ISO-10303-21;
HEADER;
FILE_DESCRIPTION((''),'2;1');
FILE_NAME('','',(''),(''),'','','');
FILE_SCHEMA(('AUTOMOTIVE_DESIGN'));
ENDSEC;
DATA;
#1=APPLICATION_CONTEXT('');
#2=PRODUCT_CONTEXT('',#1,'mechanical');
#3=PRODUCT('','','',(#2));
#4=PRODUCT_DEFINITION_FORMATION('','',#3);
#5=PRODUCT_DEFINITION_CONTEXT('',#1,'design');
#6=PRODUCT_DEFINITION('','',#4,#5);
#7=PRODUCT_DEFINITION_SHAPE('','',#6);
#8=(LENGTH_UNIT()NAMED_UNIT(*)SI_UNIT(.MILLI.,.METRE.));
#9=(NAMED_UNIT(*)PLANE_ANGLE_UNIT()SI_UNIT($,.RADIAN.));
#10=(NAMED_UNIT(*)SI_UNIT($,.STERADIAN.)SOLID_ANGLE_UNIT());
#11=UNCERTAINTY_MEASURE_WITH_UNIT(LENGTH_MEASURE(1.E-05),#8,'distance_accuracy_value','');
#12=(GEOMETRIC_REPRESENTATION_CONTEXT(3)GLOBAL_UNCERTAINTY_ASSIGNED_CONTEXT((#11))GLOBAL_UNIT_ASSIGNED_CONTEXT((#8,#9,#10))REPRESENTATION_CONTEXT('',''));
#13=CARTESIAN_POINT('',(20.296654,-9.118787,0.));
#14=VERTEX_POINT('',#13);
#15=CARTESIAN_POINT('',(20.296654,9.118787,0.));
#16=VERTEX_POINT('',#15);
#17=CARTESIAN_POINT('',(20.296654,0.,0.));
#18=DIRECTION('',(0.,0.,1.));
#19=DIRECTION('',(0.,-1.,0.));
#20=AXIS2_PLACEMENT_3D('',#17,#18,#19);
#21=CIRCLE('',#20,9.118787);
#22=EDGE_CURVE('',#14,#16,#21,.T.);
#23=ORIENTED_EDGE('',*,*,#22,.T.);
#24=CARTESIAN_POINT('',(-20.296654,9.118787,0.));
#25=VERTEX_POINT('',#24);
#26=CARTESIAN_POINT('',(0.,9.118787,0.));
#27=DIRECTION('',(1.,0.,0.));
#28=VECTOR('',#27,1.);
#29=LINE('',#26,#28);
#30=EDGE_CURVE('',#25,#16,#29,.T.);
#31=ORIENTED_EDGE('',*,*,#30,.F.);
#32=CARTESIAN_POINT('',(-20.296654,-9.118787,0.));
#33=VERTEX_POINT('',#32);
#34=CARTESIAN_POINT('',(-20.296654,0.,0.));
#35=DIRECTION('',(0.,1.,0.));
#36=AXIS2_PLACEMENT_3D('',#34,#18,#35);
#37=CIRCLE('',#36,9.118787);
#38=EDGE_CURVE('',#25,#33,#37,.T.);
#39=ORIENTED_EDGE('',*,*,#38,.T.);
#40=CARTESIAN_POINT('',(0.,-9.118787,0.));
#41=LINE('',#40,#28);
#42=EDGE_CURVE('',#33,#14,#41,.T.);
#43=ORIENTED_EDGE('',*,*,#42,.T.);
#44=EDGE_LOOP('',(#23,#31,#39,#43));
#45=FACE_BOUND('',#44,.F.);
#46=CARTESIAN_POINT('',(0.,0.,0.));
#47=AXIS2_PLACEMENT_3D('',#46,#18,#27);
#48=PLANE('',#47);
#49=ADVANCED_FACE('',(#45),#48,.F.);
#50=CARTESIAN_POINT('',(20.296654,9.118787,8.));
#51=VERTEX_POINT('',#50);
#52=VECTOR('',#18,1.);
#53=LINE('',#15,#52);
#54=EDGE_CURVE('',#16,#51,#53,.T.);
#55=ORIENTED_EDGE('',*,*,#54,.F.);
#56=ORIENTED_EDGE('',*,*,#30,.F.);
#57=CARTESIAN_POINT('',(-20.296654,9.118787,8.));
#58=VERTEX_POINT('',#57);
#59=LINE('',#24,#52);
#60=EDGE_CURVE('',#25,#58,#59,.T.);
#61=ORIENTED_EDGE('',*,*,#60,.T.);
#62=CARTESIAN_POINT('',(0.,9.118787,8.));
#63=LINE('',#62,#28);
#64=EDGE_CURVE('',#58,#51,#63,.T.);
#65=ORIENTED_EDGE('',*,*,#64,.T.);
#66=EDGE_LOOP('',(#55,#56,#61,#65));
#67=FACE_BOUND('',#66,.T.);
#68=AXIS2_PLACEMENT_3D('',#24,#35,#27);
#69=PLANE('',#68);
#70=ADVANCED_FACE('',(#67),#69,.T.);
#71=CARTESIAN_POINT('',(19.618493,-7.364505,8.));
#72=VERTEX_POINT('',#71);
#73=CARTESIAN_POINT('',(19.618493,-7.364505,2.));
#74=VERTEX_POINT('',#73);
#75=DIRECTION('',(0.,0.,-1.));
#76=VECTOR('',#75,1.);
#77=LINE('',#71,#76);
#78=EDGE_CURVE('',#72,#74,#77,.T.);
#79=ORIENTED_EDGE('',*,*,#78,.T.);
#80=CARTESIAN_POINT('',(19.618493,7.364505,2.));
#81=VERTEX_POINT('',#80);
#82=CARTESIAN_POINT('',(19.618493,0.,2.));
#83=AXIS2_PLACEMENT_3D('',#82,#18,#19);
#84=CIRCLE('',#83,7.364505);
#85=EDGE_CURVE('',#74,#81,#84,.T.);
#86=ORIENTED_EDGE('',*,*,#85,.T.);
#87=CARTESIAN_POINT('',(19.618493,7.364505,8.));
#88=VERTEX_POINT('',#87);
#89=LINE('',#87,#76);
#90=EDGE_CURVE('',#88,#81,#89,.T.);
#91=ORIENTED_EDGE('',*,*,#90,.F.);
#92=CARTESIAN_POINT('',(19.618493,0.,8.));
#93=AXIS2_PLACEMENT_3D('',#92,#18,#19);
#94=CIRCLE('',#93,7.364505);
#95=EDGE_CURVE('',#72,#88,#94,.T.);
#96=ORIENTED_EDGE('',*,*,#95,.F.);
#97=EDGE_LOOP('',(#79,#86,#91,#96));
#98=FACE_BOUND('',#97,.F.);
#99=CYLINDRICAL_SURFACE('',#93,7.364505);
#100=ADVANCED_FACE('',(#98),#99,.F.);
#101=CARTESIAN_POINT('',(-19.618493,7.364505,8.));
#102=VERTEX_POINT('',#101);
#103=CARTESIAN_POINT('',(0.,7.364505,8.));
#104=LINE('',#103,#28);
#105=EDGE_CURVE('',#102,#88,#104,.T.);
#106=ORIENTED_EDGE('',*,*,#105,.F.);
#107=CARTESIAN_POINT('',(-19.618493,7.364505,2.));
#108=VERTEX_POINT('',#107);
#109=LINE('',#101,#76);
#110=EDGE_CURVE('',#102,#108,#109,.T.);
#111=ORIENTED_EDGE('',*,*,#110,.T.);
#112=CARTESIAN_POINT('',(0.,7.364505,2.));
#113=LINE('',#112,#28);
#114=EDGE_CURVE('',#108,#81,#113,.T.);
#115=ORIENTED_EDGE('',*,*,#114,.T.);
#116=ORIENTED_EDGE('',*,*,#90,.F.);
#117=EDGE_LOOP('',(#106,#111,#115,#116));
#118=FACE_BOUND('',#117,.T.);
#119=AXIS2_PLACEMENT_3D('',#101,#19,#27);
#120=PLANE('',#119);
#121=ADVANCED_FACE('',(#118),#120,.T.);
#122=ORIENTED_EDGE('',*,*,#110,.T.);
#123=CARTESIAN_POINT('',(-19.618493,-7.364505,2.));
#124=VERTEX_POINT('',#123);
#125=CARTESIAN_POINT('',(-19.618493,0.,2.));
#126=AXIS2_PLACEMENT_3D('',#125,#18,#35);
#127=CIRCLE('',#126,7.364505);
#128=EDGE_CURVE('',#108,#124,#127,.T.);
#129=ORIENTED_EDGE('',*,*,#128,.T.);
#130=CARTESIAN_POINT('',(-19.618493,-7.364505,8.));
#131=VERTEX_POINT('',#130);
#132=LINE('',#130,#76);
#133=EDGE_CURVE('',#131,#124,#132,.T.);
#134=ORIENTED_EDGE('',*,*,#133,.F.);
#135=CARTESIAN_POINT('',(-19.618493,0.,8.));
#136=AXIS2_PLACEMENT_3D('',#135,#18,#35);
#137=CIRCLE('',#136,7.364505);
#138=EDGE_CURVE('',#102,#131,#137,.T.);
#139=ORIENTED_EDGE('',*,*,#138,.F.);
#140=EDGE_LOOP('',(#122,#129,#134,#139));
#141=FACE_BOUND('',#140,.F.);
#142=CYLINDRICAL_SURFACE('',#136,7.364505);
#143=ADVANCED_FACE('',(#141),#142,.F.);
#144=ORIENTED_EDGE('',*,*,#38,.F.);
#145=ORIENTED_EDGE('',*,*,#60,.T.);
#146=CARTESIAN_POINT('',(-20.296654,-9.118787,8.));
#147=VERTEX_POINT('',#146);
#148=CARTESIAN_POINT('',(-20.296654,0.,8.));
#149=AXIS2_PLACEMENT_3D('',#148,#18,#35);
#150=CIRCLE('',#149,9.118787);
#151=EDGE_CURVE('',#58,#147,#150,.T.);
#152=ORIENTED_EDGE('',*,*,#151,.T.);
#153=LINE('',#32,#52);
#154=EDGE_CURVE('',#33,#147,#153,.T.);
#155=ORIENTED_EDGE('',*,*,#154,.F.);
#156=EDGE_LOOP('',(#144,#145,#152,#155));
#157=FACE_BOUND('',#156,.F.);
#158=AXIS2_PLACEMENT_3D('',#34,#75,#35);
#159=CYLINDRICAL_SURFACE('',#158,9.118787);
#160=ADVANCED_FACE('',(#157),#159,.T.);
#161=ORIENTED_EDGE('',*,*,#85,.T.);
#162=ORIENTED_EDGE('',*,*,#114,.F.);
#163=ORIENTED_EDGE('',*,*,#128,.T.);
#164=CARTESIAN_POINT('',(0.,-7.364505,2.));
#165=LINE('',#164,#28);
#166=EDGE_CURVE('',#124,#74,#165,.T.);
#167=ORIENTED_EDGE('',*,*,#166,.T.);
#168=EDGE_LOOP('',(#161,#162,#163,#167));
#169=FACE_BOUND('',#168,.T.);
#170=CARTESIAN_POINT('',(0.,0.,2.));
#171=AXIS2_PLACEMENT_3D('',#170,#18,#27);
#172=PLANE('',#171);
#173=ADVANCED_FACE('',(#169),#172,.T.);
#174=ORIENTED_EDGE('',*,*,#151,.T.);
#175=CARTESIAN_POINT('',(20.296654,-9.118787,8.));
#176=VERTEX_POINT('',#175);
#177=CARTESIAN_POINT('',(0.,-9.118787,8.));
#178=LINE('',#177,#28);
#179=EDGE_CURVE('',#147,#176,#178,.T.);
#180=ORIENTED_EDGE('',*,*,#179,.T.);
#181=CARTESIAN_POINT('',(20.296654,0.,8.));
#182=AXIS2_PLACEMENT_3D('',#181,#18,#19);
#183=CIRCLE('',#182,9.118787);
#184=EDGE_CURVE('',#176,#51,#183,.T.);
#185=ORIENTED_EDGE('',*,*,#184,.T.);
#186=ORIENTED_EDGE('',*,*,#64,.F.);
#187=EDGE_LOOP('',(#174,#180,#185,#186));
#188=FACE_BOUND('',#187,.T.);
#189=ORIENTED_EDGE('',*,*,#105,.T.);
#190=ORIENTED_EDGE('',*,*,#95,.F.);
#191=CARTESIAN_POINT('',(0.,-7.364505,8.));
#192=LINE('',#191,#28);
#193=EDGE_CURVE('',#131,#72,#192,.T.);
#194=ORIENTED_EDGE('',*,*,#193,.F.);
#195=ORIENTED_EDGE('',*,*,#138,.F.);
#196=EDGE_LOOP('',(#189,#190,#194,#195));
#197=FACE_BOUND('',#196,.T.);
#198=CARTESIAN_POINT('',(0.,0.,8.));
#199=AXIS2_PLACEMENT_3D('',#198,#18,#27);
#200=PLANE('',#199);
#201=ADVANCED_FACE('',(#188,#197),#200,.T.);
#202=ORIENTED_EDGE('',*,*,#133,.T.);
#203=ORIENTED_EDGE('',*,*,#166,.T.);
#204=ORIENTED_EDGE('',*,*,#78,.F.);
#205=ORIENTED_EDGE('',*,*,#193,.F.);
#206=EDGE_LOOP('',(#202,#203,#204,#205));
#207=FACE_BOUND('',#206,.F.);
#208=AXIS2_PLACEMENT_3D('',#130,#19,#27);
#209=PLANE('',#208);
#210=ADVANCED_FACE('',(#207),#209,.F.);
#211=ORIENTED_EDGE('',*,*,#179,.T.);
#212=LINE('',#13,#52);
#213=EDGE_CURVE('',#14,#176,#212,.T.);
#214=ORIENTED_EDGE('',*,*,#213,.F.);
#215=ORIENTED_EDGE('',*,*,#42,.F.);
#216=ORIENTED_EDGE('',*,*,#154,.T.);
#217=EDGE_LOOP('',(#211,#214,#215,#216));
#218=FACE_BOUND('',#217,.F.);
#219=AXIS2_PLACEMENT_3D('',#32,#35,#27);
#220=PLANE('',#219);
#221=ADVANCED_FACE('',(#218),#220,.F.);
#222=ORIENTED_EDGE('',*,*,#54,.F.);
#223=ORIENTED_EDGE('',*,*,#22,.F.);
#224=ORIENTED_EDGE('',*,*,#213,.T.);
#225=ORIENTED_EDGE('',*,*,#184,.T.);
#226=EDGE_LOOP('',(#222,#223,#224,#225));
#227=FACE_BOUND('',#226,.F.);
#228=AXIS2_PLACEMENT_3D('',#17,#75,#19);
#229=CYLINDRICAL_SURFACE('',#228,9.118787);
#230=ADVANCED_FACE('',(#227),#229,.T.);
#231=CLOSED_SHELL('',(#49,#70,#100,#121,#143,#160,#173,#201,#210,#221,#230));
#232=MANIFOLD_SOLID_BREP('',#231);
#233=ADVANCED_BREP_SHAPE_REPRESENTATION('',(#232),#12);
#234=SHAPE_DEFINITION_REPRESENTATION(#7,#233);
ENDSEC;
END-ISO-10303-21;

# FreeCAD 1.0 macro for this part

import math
import FreeCAD as App
import Part
import Sketcher

V = App.Vector

doc = App.newDocument("Part")
params = doc.addObject("Spreadsheet::Sheet", "Params")
for row, (alias, value) in enumerate([
    ("pad1_length", "8 mm"),
    ("pocket1_length", "6 mm"),
], start=1):
    params.set(f"A{row}", alias)
    params.set(f"B{row}", "=" + value)
    params.setAlias(f"B{row}", alias)

body = doc.addObject("PartDesign::Body", "Body")

sketch1 = body.newObject("Sketcher::SketchObject", "Sketch")
sketch1.AttachmentSupport = (doc.getObject("XY_Plane"), [""])
sketch1.MapMode = "FlatFace"
sketch1.addGeometry(Part.LineSegment(V(-20, -9, 0), V(20, -9, 0)), False)
sketch1.addGeometry(Part.ArcOfCircle(Part.Circle(V(20, 0, 0), V(0, 0, 1), 9), math.radians(-90), math.radians(90)), False)
sketch1.addGeometry(Part.LineSegment(V(20, 9, 0), V(-20, 9, 0)), False)
sketch1.addGeometry(Part.ArcOfCircle(Part.Circle(V(-20, 0, 0), V(0, 0, 1), 9), math.radians(90), math.radians(270)), False)
sketch1.addConstraint(Sketcher.Constraint("Tangent", 0, 2, 1, 1))
sketch1.addConstraint(Sketcher.Constraint("Tangent", 1, 2, 2, 1))
sketch1.addConstraint(Sketcher.Constraint("Tangent", 2, 2, 3, 1))
sketch1.addConstraint(Sketcher.Constraint("Tangent", 3, 2, 0, 1))
sketch1.addConstraint(Sketcher.Constraint("Horizontal", 0))
sketch1.addConstraint(Sketcher.Constraint("Horizontal", 2))
sketch1.addConstraint(Sketcher.Constraint("Symmetric", 1, 3, 3, 3, -1, 1))
sketch1.addConstraint(Sketcher.Constraint("Radius", 1, 9.118787))
sketch1.addConstraint(Sketcher.Constraint("DistanceX", 0, 1, 0, 2, 40.593308))
pad1 = body.newObject("PartDesign::Pad", "Pad")
pad1.Profile = sketch1
pad1.setExpression("Length", "Params.pad1_length")

sketch2 = body.newObject("Sketcher::SketchObject", "Sketch001")
sketch2.AttachmentSupport = (doc.getObject("XY_Plane"), [""])
sketch2.MapMode = "FlatFace"
sketch2.AttachmentOffset = App.Placement(V(0, 0, 8), App.Rotation())
sketch2.addGeometry(Part.LineSegment(V(-20, -7, 0), V(20, -7, 0)), False)
sketch2.addGeometry(Part.ArcOfCircle(Part.Circle(V(20, 0, 0), V(0, 0, 1), 7), math.radians(-90), math.radians(90)), False)
sketch2.addGeometry(Part.LineSegment(V(20, 7, 0), V(-20, 7, 0)), False)
sketch2.addGeometry(Part.ArcOfCircle(Part.Circle(V(-20, 0, 0), V(0, 0, 1), 7), math.radians(90), math.radians(270)), False)
sketch2.addConstraint(Sketcher.Constraint("Tangent", 0, 2, 1, 1))
sketch2.addConstraint(Sketcher.Constraint("Tangent", 1, 2, 2, 1))
sketch2.addConstraint(Sketcher.Constraint("Tangent", 2, 2, 3, 1))
sketch2.addConstraint(Sketcher.Constraint("Tangent", 3, 2, 0, 1))
sketch2.addConstraint(Sketcher.Constraint("Horizontal", 0))
sketch2.addConstraint(Sketcher.Constraint("Horizontal", 2))
sketch2.addConstraint(Sketcher.Constraint("Symmetric", 1, 3, 3, 3, -1, 1))
sketch2.addConstraint(Sketcher.Constraint("Radius", 1, 7.364505))
sketch2.addConstraint(Sketcher.Constraint("DistanceX", 0, 1, 0, 2, 39.236986))
pocket1 = body.newObject("PartDesign::Pocket", "Pocket")
pocket1.Profile = sketch2
pocket1.setExpression("Length", "Params.pocket1_length")

doc.recompute()
